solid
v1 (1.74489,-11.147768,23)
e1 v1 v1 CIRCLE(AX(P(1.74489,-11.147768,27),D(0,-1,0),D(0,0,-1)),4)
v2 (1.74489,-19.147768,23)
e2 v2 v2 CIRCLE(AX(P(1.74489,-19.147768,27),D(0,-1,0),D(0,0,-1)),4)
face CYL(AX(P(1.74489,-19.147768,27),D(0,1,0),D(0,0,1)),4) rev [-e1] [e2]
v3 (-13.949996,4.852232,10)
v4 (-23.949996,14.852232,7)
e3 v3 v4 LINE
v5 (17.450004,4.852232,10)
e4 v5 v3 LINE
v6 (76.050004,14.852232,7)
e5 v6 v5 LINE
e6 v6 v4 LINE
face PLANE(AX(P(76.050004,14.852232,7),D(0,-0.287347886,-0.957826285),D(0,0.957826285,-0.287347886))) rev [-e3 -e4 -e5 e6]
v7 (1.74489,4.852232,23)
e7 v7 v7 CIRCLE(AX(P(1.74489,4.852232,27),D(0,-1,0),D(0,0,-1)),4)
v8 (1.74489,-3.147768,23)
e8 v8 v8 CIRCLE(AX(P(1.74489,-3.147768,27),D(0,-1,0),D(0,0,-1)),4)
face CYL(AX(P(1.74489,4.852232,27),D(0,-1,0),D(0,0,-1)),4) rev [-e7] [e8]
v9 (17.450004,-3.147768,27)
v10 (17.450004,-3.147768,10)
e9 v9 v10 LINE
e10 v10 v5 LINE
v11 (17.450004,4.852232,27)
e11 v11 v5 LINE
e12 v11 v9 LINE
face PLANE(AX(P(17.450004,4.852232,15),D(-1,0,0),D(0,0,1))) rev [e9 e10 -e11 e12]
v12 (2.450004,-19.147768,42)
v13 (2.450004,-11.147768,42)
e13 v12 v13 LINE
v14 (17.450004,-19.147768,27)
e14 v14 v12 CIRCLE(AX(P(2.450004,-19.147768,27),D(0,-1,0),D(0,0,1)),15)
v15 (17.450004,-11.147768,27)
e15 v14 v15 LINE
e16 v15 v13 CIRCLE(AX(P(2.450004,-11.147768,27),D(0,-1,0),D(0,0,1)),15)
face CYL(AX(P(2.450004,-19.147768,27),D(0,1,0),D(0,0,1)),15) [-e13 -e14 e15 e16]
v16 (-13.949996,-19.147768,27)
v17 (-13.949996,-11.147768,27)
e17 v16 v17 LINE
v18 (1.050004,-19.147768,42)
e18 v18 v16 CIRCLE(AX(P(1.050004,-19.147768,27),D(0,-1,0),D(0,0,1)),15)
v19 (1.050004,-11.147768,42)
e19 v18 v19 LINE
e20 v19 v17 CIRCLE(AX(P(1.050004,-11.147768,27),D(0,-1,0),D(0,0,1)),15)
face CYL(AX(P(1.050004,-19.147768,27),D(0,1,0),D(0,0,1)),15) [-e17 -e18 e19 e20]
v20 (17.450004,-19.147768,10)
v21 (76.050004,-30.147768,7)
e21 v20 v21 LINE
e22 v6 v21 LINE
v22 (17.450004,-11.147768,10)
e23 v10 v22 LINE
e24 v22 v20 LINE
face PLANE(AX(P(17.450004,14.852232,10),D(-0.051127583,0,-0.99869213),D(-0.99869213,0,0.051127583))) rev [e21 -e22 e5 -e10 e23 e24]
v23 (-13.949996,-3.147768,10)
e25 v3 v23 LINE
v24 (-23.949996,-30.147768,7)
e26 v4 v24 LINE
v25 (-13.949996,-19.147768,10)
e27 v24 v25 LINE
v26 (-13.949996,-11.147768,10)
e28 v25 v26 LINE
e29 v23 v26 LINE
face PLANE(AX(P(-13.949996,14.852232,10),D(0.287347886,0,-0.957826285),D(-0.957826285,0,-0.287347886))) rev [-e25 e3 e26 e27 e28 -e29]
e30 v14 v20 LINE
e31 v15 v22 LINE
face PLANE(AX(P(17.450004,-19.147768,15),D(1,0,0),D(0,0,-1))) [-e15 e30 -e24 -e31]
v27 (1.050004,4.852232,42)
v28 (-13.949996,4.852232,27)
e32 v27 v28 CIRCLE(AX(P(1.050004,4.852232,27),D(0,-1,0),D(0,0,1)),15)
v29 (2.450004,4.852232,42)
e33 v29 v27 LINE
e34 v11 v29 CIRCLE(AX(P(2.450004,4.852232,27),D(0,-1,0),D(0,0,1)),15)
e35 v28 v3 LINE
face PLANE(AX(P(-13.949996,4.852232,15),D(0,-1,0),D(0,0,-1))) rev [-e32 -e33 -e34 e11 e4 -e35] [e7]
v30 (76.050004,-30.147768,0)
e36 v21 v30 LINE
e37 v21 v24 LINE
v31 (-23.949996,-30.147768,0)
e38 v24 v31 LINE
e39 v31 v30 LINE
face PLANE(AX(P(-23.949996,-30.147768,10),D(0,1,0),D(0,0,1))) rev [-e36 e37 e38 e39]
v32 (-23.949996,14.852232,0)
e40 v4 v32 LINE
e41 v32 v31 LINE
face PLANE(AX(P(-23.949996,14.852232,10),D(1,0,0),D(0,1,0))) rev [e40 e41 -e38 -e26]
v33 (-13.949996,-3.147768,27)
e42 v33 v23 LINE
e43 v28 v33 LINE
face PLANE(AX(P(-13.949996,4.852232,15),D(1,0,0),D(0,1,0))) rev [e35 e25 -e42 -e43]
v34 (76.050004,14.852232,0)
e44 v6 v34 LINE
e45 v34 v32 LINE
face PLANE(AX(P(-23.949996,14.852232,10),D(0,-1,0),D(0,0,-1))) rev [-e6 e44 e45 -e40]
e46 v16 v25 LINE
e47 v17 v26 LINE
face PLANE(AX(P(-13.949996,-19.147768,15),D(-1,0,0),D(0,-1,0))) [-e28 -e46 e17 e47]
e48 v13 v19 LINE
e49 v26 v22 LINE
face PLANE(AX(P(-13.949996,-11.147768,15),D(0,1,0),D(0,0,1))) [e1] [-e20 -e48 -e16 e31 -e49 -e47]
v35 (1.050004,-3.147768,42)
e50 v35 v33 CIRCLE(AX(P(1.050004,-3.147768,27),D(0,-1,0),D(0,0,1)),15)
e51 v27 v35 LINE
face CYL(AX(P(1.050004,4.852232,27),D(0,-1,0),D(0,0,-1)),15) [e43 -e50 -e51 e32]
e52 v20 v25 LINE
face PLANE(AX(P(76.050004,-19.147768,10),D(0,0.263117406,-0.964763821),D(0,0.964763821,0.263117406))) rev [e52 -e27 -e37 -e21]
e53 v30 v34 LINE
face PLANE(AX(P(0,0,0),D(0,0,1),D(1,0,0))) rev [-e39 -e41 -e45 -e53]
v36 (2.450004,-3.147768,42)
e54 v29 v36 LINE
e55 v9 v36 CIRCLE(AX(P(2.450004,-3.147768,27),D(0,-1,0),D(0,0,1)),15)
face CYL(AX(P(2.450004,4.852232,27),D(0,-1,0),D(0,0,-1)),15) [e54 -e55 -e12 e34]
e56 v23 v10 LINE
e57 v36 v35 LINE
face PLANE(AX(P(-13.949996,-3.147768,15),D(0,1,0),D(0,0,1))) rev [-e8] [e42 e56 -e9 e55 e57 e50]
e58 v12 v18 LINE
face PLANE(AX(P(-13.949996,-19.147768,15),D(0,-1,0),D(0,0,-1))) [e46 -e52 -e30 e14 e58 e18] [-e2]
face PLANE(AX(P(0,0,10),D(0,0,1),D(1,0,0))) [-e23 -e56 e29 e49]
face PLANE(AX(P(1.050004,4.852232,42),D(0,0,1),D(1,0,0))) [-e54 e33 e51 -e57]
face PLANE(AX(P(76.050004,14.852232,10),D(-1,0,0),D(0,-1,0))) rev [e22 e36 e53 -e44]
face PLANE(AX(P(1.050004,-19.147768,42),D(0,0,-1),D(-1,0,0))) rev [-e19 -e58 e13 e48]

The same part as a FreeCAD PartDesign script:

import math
import FreeCAD as App
import Part
import Sketcher
from FreeCAD import Vector
Q = App.Units.Quantity

doc = App.newDocument("Part")
params = doc.addObject("Spreadsheet::Sheet", "Params")
for row, (alias, value) in enumerate([
    ("sketch1_width", "100 mm"),
    ("sketch1_height", "45 mm"),
    ("pad1_length", "10 mm"),
    ("sketch2_height", "8 mm"),
    ("sketch2_width", "31.4 mm"),
    ("pad2_length", "5 mm"),
    ("sketch3_diameter", "8 mm"),
    ("sketch3_radius", "15 mm"),
    ("sketch3_height", "12 mm"),
    ("sketch3_width", "31.4 mm"),
    ("pad3_length", "8 mm"),
    ("sketch4_width", "10 mm"),
    ("sketch4_height", "3 mm"),
    ("sketch4_width2", "58.6 mm"),
    ("pocket1_length", "45 mm"),
    ("sketch5_width", "10 mm"),
    ("sketch5_width2", "11 mm"),
    ("sketch5_height", "3 mm"),
    ("pocket2_length", "100 mm"),
], start=1):
    params.set(f"A{row}", alias)
    params.set(f"B{row}", "=" + value)
    params.setAlias(f"B{row}", alias)

body = doc.addObject("PartDesign::Body", "Body")

# Sketch on XY plane
sketch1 = doc.addObject("Sketcher::SketchObject", "Sketch")
body.addObject(sketch1)
sketch1.AttachmentSupport = (doc.XY_Plane, [""])
sketch1.MapMode = "FlatFace"
sketch1.addGeometry(Part.LineSegment(Vector(-23.949996, 14.852232, 0), Vector(-23.949996, -30.147768, 0)), False)
sketch1.addGeometry(Part.LineSegment(Vector(-23.949996, -30.147768, 0), Vector(76.050004, -30.147768, 0)), False)
sketch1.addGeometry(Part.LineSegment(Vector(76.050004, -30.147768, 0), Vector(76.050004, 14.852232, 0)), False)
sketch1.addGeometry(Part.LineSegment(Vector(76.050004, 14.852232, 0), Vector(-23.949996, 14.852232, 0)), False)
sketch1.addConstraint(Sketcher.Constraint("Coincident", 0, 2, 1, 1))
sketch1.addConstraint(Sketcher.Constraint("Coincident", 1, 2, 2, 1))
sketch1.addConstraint(Sketcher.Constraint("Coincident", 2, 2, 3, 1))
sketch1.addConstraint(Sketcher.Constraint("Coincident", 3, 2, 0, 1))
sketch1.addConstraint(Sketcher.Constraint("Vertical", 0))
sketch1.addConstraint(Sketcher.Constraint("Horizontal", 1))
sketch1.addConstraint(Sketcher.Constraint("Vertical", 2))
sketch1.addConstraint(Sketcher.Constraint("Horizontal", 3))
sketch1.addConstraint(Sketcher.Constraint("DistanceX", 1, 1, 1, 2, Q("100 mm")))
sketch1.addConstraint(Sketcher.Constraint("DistanceY", 0, 2, 0, 1, Q("45 mm")))
sketch1.addConstraint(Sketcher.Constraint("DistanceY", 0, 2, -1, 1, Q("30.147768 mm")))
sketch1.addConstraint(Sketcher.Constraint("DistanceX", 0, 2, -1, 1, Q("23.949996 mm")))
sketch1.setExpression("Constraints[8]", "Params.sketch1_width")
sketch1.setExpression("Constraints[9]", "Params.sketch1_height")
pad1 = doc.addObject("PartDesign::Pad", "Pad")
body.addObject(pad1)
pad1.Profile = sketch1
pad1.setExpression("Length", "Params.pad1_length")

# Sketch on XY plane
sketch2 = doc.addObject("Sketcher::SketchObject", "Sketch001")
body.addObject(sketch2)
sketch2.AttachmentSupport = (doc.XY_Plane, [""])
sketch2.MapMode = "FlatFace"
sketch2.AttachmentOffset = App.Placement(Vector(0, 0, 10), App.Rotation())
sketch2.addGeometry(Part.LineSegment(Vector(-13.949996, 4.852232, 0), Vector(-13.949996, -3.147768, 0)), False)
sketch2.addGeometry(Part.LineSegment(Vector(-13.949996, -3.147768, 0), Vector(17.450004, -3.147768, 0)), False)
sketch2.addGeometry(Part.LineSegment(Vector(17.450004, -3.147768, 0), Vector(17.450004, 4.852232, 0)), False)
sketch2.addGeometry(Part.LineSegment(Vector(17.450004, 4.852232, 0), Vector(-13.949996, 4.852232, 0)), False)
sketch2.addConstraint(Sketcher.Constraint("Coincident", 0, 2, 1, 1))
sketch2.addConstraint(Sketcher.Constraint("Coincident", 1, 2, 2, 1))
sketch2.addConstraint(Sketcher.Constraint("Coincident", 2, 2, 3, 1))
sketch2.addConstraint(Sketcher.Constraint("Coincident", 3, 2, 0, 1))
sketch2.addConstraint(Sketcher.Constraint("Vertical", 0))
sketch2.addConstraint(Sketcher.Constraint("Horizontal", 1))
sketch2.addConstraint(Sketcher.Constraint("Vertical", 2))
sketch2.addConstraint(Sketcher.Constraint("Horizontal", 3))
sketch2.addConstraint(Sketcher.Constraint("DistanceY", 0, 2, 0, 1, Q("8 mm")))
sketch2.addConstraint(Sketcher.Constraint("DistanceX", 1, 1, 1, 2, Q("31.4 mm")))
sketch2.addConstraint(Sketcher.Constraint("DistanceY", 0, 2, -1, 1, Q("3.147768 mm")))
sketch2.addConstraint(Sketcher.Constraint("DistanceX", 0, 2, -1, 1, Q("13.949996 mm")))
sketch2.setExpression("Constraints[8]", "Params.sketch2_height")
sketch2.setExpression("Constraints[9]", "Params.sketch2_width")
pad2 = doc.addObject("PartDesign::Pad", "Pad001")
body.addObject(pad2)
pad2.Profile = sketch2
pad2.setExpression("Length", "Params.pad2_length")

# Sketch on XZ plane
sketch3 = doc.addObject("Sketcher::SketchObject", "Sketch002")
body.addObject(sketch3)
sketch3.AttachmentSupport = (doc.XZ_Plane, [""])
sketch3.MapMode = "FlatFace"
sketch3.AttachmentOffset = App.Placement(Vector(0, 0, 3.147768), App.Rotation())
sketch3.addGeometry(Part.LineSegment(Vector(-13.949996, 27, 0), Vector(-13.949996, 15, 0)), False)
sketch3.addGeometry(Part.LineSegment(Vector(-13.949996, 15, 0), Vector(17.450004, 15, 0)), False)
sketch3.addGeometry(Part.LineSegment(Vector(17.450004, 15, 0), Vector(17.450004, 27, 0)), False)
sketch3.addGeometry(Part.ArcOfCircle(Part.Circle(Vector(2.450004, 27, 0), Vector(0, 0, 1), 15), math.radians(0), math.radians(90)), False)
sketch3.addGeometry(Part.LineSegment(Vector(2.450004, 42, 0), Vector(1.050004, 42, 0)), False)
sketch3.addGeometry(Part.ArcOfCircle(Part.Circle(Vector(1.050004, 27, 0), Vector(0, 0, 1), 15), math.radians(90), math.radians(180)), False)
sketch3.addGeometry(Part.Circle(Vector(1.74489, 27, 0), Vector(0, 0, 1), 4), False)
sketch3.addConstraint(Sketcher.Constraint("Coincident", 0, 2, 1, 1))
sketch3.addConstraint(Sketcher.Constraint("Coincident", 1, 2, 2, 1))
sketch3.addConstraint(Sketcher.Constraint("Tangent", 2, 2, 3, 1))
sketch3.addConstraint(Sketcher.Constraint("Tangent", 3, 2, 4, 1))
sketch3.addConstraint(Sketcher.Constraint("Tangent", 4, 2, 5, 1))
sketch3.addConstraint(Sketcher.Constraint("Tangent", 5, 2, 0, 1))
sketch3.addConstraint(Sketcher.Constraint("Vertical", 0))
sketch3.addConstraint(Sketcher.Constraint("Horizontal", 1))
sketch3.addConstraint(Sketcher.Constraint("Vertical", 2))
sketch3.addConstraint(Sketcher.Constraint("Horizontal", 4))
sketch3.addConstraint(Sketcher.Constraint("Equal", 3, 5))
sketch3.addConstraint(Sketcher.Constraint("Horizontal", 5, 3, 6, 3))
sketch3.addConstraint(Sketcher.Constraint("Diameter", 6, Q("8 mm")))
sketch3.addConstraint(Sketcher.Constraint("Radius", 3, Q("15 mm")))
sketch3.addConstraint(Sketcher.Constraint("DistanceY", 0, 2, 0, 1, Q("12 mm")))
sketch3.addConstraint(Sketcher.Constraint("DistanceX", 1, 1, 1, 2, Q("31.4 mm")))
sketch3.addConstraint(Sketcher.Constraint("DistanceY", -1, 1, 3, 3, Q("27 mm")))
sketch3.addConstraint(Sketcher.Constraint("DistanceX", -1, 1, 6, 3, Q("1.74489 mm")))
sketch3.addConstraint(Sketcher.Constraint("DistanceX", -1, 1, 3, 3, Q("2.450004 mm")))
sketch3.setExpression("Constraints[12]", "Params.sketch3_diameter")
sketch3.setExpression("Constraints[13]", "Params.sketch3_radius")
sketch3.setExpression("Constraints[14]", "Params.sketch3_height")
sketch3.setExpression("Constraints[15]", "Params.sketch3_width")
pad3 = doc.addObject("PartDesign::Pad", "Pad002")
body.addObject(pad3)
pad3.Profile = sketch3
pad3.setExpression("Length", "Params.pad3_length")
pad3.Reversed = True
doc.recompute()

datumplane = doc.addObject("PartDesign::Plane", "DatumPlane")
body.addObject(datumplane)
datumplane.AttachmentSupport = (doc.XZ_Plane, [""])
datumplane.MapMode = "FlatFace"
datumplane.AttachmentOffset = App.Placement(Vector(0, 0, 7.147768), App.Rotation())
mirrored = doc.addObject("PartDesign::Mirrored", "Mirrored")
body.addObject(mirrored)
mirrored.Originals = [pad2, pad3]
mirrored.MirrorPlane = (datumplane, [""])
body.Tip = mirrored

# Sketch on XZ plane
sketch4 = doc.addObject("Sketcher::SketchObject", "Sketch003")
body.addObject(sketch4)
sketch4.AttachmentSupport = (doc.XZ_Plane, [""])
sketch4.MapMode = "FlatFace"
sketch4.AttachmentOffset = App.Placement(Vector(0, 0, 30.147768), App.Rotation())
sketch4.addGeometry(Part.LineSegment(Vector(-23.949996, 7, 0), Vector(-13.949996, 10, 0)), False)
sketch4.addGeometry(Part.LineSegment(Vector(-13.949996, 10, 0), Vector(-23.949996, 10, 0)), False)
sketch4.addGeometry(Part.LineSegment(Vector(-23.949996, 10, 0), Vector(-23.949996, 7, 0)), False)
sketch4.addGeometry(Part.LineSegment(Vector(17.450004, 10, 0), Vector(76.050004, 7, 0)), False)
sketch4.addGeometry(Part.LineSegment(Vector(76.050004, 7, 0), Vector(76.050004, 10, 0)), False)
sketch4.addGeometry(Part.LineSegment(Vector(76.050004, 10, 0), Vector(17.450004, 10, 0)), False)
sketch4.addConstraint(Sketcher.Constraint("Coincident", 0, 2, 1, 1))
sketch4.addConstraint(Sketcher.Constraint("Coincident", 1, 2, 2, 1))
sketch4.addConstraint(Sketcher.Constraint("Coincident", 2, 2, 0, 1))
sketch4.addConstraint(Sketcher.Constraint("Coincident", 3, 2, 4, 1))
sketch4.addConstraint(Sketcher.Constraint("Coincident", 4, 2, 5, 1))
sketch4.addConstraint(Sketcher.Constraint("Coincident", 5, 2, 3, 1))
sketch4.addConstraint(Sketcher.Constraint("Horizontal", 1))
sketch4.addConstraint(Sketcher.Constraint("Vertical", 2))
sketch4.addConstraint(Sketcher.Constraint("Vertical", 4))
sketch4.addConstraint(Sketcher.Constraint("Horizontal", 5))
sketch4.addConstraint(Sketcher.Constraint("Horizontal", 2, 2, 3, 2))
sketch4.addConstraint(Sketcher.Constraint("Horizontal", 1, 2, 4, 2))
sketch4.addConstraint(Sketcher.Constraint("DistanceX", 1, 2, 1, 1, Q("10 mm")))
sketch4.addConstraint(Sketcher.Constraint("DistanceY", 2, 2, 2, 1, Q("3 mm")))
sketch4.addConstraint(Sketcher.Constraint("DistanceX", 5, 2, 5, 1, Q("58.6 mm")))
sketch4.addConstraint(Sketcher.Constraint("DistanceY", -1, 1, 0, 2, Q("10 mm")))
sketch4.addConstraint(Sketcher.Constraint("DistanceX", 0, 2, 3, 2, Q("90 mm")))
sketch4.addConstraint(Sketcher.Constraint("DistanceX", 0, 2, -1, 1, Q("13.949996 mm")))
sketch4.setExpression("Constraints[12]", "Params.sketch4_width")
sketch4.setExpression("Constraints[13]", "Params.sketch4_height")
sketch4.setExpression("Constraints[14]", "Params.sketch4_width2")
pocket1 = doc.addObject("PartDesign::Pocket", "Pocket")
body.addObject(pocket1)
pocket1.Profile = sketch4
pocket1.setExpression("Length", "Params.pocket1_length")

# Sketch on YZ plane
sketch5 = doc.addObject("Sketcher::SketchObject", "Sketch004")
body.addObject(sketch5)
sketch5.AttachmentSupport = (doc.YZ_Plane, [""])
sketch5.MapMode = "FlatFace"
sketch5.AttachmentOffset = App.Placement(Vector(0, 0, -23.949996), App.Rotation())
sketch5.addGeometry(Part.LineSegment(Vector(14.852232, 7, 0), Vector(4.852232, 10, 0)), False)
sketch5.addGeometry(Part.LineSegment(Vector(4.852232, 10, 0), Vector(14.852232, 10, 0)), False)
sketch5.addGeometry(Part.LineSegment(Vector(14.852232, 10, 0), Vector(14.852232, 7, 0)), False)
sketch5.addGeometry(Part.LineSegment(Vector(-19.147768, 10, 0), Vector(-30.147768, 7, 0)), False)
sketch5.addGeometry(Part.LineSegment(Vector(-30.147768, 7, 0), Vector(-30.147768, 10, 0)), False)
sketch5.addGeometry(Part.LineSegment(Vector(-30.147768, 10, 0), Vector(-19.147768, 10, 0)), False)
sketch5.addConstraint(Sketcher.Constraint("Coincident", 0, 2, 1, 1))
sketch5.addConstraint(Sketcher.Constraint("Coincident", 1, 2, 2, 1))
sketch5.addConstraint(Sketcher.Constraint("Coincident", 2, 2, 0, 1))
sketch5.addConstraint(Sketcher.Constraint("Coincident", 3, 2, 4, 1))
sketch5.addConstraint(Sketcher.Constraint("Coincident", 4, 2, 5, 1))
sketch5.addConstraint(Sketcher.Constraint("Coincident", 5, 2, 3, 1))
sketch5.addConstraint(Sketcher.Constraint("Horizontal", 1))
sketch5.addConstraint(Sketcher.Constraint("Vertical", 2))
sketch5.addConstraint(Sketcher.Constraint("Vertical", 4))
sketch5.addConstraint(Sketcher.Constraint("Horizontal", 5))
sketch5.addConstraint(Sketcher.Constraint("Horizontal", 2, 2, 3, 2))
sketch5.addConstraint(Sketcher.Constraint("Horizontal", 1, 2, 4, 2))
sketch5.addConstraint(Sketcher.Constraint("DistanceX", 1, 1, 1, 2, Q("10 mm")))
sketch5.addConstraint(Sketcher.Constraint("DistanceX", 5, 1, 5, 2, Q("11 mm")))
sketch5.addConstraint(Sketcher.Constraint("DistanceY", 2, 2, 2, 1, Q("3 mm")))
sketch5.addConstraint(Sketcher.Constraint("DistanceY", -1, 1, 0, 2, Q("10 mm")))
sketch5.addConstraint(Sketcher.Constraint("DistanceX", 3, 2, 0, 2, Q("35 mm")))
sketch5.addConstraint(Sketcher.Constraint("DistanceX", -1, 1, 0, 2, Q("4.852232 mm")))
sketch5.setExpression("Constraints[12]", "Params.sketch5_width")
sketch5.setExpression("Constraints[13]", "Params.sketch5_width2")
sketch5.setExpression("Constraints[14]", "Params.sketch5_height")
pocket2 = doc.addObject("PartDesign::Pocket", "Pocket001")
body.addObject(pocket2)
pocket2.Profile = sketch5
pocket2.setExpression("Length", "Params.pocket2_length")
pocket2.Reversed = True

doc.recompute()
